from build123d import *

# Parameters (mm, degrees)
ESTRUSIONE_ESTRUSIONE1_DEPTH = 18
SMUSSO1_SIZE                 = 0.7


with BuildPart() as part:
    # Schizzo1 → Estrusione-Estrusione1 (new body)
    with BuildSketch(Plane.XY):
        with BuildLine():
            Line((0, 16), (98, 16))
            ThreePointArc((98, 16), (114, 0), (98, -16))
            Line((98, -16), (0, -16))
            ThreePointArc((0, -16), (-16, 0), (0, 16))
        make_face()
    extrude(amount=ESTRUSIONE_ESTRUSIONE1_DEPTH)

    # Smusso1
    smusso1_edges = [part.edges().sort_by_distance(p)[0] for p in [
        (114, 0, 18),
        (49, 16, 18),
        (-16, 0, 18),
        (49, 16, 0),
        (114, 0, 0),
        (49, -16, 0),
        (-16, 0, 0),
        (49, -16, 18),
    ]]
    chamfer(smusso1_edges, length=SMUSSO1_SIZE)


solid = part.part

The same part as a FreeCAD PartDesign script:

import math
import FreeCAD as App
import Part
import Sketcher


def edges_at(feature, points):
    """Names of the edges that pass closest to the given points."""
    edges = feature.Shape.Edges
    near = lambda p: min(range(len(edges)), key=lambda i: edges[i].distToShape(Part.Vertex(*p))[0])
    return sorted({f"Edge{near(p) + 1}" for p in points})

doc = App.newDocument("Part")
body = doc.addObject("PartDesign::Body", "Body")

# Sketch on XY plane
sketch1 = doc.addObject("Sketcher::SketchObject", "Sketch")
body.addObject(sketch1)
sketch1.AttachmentSupport = (doc.XY_Plane, [""])
sketch1.MapMode = "FlatFace"
sketch1.addGeometry([
    Part.LineSegment(App.Vector(98, 16, 0), App.Vector(0, 16, 0)),
    Part.ArcOfCircle(Part.Circle(App.Vector(0, 0, 0), App.Vector(0, 0, 1), 16), math.radians(90), math.radians(270)),
    Part.LineSegment(App.Vector(0, -16, 0), App.Vector(98, -16, 0)),
    Part.ArcOfCircle(Part.Circle(App.Vector(98, 0, 0), App.Vector(0, 0, 1), 16), math.radians(-90), math.radians(90)),
], False)
sketch1.addConstraint([
    Sketcher.Constraint("Tangent", 0, 2, 1, 1),
    Sketcher.Constraint("Tangent", 1, 2, 2, 1),
    Sketcher.Constraint("Tangent", 2, 2, 3, 1),
    Sketcher.Constraint("Tangent", 3, 2, 0, 1),
    Sketcher.Constraint("Horizontal", 0),
    Sketcher.Constraint("Horizontal", 2),
    Sketcher.Constraint("Coincident", 1, 3, -1, 1),
    Sketcher.Constraint("Radius", 1, 16.0),
    Sketcher.Constraint("DistanceX", 0, 2, 0, 1, 98.0),
])
pad1 = doc.addObject("PartDesign::Pad", "Pad")
body.addObject(pad1)
pad1.Profile = sketch1
pad1.Length = 18
doc.recompute()

chamfer = doc.addObject("PartDesign::Chamfer", "Chamfer")
body.addObject(chamfer)
chamfer.Base = (pad1, edges_at(pad1, [
    (114, 0, 18),
    (49, 16, 18),
    (-16, 0, 18),
    (49, 16, 0),
    (114, 0, 0),
    (49, -16, 0),
    (-16, 0, 0),
    (49, -16, 18),
]))
chamfer.Size = 0.7

doc.recompute()
